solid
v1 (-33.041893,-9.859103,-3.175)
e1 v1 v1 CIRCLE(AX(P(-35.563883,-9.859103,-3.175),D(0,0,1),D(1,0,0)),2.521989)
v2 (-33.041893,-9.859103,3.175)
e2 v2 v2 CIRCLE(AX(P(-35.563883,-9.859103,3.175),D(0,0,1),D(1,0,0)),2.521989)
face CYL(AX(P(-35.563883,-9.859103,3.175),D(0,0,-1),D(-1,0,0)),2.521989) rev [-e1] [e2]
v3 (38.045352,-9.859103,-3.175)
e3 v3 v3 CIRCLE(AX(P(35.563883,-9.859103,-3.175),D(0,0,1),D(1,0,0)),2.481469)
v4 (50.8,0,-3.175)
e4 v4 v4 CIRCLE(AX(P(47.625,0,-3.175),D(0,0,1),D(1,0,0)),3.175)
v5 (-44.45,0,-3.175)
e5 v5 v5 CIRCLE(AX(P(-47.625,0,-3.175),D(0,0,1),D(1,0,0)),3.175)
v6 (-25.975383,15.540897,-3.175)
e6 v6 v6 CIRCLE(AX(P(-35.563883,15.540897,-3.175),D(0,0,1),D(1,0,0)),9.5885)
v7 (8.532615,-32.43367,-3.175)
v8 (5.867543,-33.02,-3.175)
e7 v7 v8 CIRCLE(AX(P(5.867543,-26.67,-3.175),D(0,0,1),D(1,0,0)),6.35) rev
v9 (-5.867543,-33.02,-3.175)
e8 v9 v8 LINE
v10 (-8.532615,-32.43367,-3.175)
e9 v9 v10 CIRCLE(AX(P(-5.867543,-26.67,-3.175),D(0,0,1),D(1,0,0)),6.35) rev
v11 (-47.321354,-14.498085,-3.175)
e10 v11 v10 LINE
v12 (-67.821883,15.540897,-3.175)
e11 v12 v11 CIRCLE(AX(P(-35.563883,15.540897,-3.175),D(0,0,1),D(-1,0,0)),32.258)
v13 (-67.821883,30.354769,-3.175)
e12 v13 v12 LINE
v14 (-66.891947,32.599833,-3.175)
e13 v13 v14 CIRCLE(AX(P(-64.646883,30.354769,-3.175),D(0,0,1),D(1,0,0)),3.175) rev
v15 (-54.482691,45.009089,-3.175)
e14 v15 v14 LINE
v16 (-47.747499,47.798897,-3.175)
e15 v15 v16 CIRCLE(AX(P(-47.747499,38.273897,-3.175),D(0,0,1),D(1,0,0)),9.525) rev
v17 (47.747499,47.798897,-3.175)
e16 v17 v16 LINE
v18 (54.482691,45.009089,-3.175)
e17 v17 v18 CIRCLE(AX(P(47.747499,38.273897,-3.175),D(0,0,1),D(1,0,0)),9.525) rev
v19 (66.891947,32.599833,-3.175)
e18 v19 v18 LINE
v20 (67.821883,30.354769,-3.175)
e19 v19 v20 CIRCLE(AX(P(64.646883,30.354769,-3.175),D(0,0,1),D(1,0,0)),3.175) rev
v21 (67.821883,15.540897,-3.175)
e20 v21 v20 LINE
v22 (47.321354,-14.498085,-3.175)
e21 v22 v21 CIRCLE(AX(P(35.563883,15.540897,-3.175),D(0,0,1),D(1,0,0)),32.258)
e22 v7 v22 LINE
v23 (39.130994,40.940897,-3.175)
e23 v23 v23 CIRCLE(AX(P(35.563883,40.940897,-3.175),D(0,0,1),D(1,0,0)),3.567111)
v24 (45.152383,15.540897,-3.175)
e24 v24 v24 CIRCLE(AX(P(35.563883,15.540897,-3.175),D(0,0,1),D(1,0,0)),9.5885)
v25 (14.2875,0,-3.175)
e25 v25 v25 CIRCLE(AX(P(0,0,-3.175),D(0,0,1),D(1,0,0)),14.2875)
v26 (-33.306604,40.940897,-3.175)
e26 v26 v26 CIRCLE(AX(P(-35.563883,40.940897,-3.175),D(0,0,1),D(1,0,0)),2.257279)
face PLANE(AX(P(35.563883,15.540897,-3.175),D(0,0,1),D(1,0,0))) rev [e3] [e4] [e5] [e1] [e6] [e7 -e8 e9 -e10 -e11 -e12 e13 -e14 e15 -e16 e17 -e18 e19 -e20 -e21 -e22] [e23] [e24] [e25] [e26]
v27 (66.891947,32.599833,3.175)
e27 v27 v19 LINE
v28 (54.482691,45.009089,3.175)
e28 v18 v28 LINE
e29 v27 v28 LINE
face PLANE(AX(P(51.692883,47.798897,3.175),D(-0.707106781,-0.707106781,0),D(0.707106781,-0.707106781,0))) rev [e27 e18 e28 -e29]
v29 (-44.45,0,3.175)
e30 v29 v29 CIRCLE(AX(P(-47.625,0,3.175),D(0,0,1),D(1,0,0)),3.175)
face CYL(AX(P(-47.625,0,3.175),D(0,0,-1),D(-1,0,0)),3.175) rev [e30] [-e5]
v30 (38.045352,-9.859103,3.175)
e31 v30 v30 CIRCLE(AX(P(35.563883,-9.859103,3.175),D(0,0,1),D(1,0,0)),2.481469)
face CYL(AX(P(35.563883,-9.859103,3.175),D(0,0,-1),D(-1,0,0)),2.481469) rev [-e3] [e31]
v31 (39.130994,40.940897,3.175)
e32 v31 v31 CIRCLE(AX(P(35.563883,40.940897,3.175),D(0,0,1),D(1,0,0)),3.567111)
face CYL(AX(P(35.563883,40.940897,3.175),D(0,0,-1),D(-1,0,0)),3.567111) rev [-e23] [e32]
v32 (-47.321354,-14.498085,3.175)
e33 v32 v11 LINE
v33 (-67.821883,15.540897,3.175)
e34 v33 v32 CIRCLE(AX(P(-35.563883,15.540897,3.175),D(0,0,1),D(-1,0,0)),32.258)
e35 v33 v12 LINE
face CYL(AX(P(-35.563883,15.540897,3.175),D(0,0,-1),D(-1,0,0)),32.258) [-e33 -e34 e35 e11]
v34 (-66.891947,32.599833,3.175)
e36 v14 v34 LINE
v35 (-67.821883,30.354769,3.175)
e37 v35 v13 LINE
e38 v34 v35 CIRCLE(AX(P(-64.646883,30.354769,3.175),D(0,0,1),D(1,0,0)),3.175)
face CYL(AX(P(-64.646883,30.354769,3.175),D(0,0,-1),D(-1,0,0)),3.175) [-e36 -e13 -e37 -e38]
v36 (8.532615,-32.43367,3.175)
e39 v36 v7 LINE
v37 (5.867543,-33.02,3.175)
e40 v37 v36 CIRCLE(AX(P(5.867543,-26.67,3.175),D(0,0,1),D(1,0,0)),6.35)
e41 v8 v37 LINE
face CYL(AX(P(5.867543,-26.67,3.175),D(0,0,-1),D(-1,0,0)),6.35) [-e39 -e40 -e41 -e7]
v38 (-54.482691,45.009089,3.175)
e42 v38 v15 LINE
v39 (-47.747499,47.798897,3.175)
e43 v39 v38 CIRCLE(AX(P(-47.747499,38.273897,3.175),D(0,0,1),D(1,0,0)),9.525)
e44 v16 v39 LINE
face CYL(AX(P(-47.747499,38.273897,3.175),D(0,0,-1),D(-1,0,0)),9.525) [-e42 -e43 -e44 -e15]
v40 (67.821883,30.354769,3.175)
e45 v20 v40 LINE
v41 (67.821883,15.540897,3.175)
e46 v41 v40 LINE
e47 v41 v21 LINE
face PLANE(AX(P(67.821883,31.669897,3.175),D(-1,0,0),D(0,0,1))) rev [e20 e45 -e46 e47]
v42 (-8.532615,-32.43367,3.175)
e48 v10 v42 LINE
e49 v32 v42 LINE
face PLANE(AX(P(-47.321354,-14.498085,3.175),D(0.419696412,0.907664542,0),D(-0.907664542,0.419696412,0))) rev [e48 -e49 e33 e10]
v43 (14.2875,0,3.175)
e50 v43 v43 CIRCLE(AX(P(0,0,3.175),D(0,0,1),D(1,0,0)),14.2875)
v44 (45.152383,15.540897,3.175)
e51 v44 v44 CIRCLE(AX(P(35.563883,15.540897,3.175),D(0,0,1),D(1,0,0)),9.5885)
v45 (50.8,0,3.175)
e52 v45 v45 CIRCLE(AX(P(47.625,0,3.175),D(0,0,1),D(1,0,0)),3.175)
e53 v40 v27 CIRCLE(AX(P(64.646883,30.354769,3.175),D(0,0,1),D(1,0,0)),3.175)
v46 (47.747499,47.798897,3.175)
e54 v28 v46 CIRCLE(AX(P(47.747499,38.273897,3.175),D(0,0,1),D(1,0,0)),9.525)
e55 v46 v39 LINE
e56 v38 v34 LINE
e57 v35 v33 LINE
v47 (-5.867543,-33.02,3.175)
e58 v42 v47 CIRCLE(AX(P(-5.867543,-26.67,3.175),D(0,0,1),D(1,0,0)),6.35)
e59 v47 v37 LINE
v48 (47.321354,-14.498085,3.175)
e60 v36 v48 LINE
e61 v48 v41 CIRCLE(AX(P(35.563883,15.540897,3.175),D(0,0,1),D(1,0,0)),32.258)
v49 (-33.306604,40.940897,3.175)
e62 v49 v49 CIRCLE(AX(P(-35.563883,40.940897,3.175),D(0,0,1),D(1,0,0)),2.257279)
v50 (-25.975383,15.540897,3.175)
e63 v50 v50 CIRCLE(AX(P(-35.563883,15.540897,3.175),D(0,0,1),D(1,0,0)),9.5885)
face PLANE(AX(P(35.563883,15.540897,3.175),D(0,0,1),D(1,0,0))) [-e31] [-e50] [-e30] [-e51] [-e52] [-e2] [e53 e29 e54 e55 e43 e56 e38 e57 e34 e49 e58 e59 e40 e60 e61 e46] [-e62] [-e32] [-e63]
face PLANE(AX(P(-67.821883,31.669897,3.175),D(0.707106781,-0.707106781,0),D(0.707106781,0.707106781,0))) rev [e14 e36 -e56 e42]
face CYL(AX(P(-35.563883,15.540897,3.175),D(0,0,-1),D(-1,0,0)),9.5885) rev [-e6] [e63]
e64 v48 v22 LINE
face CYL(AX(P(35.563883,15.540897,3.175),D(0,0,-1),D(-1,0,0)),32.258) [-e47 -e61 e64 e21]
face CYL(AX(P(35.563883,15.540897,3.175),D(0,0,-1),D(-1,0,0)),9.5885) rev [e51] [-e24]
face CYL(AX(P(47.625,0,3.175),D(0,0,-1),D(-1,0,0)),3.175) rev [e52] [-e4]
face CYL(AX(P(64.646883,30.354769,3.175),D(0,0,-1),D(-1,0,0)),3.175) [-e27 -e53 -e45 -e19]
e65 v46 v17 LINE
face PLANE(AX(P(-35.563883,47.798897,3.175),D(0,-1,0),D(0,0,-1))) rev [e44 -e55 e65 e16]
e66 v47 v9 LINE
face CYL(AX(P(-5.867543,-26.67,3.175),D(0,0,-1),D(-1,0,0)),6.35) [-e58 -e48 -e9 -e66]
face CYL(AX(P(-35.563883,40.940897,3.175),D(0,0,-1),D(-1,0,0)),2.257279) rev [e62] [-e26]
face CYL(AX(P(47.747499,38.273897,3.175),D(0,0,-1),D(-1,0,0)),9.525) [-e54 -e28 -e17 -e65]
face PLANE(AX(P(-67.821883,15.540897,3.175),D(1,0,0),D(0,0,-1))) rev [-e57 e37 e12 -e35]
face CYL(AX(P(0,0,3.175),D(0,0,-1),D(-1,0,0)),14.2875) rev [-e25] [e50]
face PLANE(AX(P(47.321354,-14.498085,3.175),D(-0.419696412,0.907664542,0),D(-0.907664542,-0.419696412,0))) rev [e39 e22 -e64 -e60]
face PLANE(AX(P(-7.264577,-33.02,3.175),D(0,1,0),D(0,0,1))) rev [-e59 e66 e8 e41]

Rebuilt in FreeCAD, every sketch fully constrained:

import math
import FreeCAD as App
import Part
import Sketcher
Q = App.Units.Quantity


def edges_at(feature, points):
    """Names of the edges that pass closest to the given points."""
    edges = feature.Shape.Edges
    near = lambda p: min(range(len(edges)), key=lambda i: edges[i].distToShape(Part.Vertex(*p))[0])
    return sorted({f"Edge{near(p) + 1}" for p in points})

doc = App.newDocument("Part")
body = doc.addObject("PartDesign::Body", "Body")

# Sketch on XY plane
sketch1 = doc.addObject("Sketcher::SketchObject", "Sketch")
body.addObject(sketch1)
sketch1.AttachmentSupport = (doc.XY_Plane, [""])
sketch1.MapMode = "FlatFace"
sketch1.addGeometry(Part.LineSegment(App.Vector(67.821883, 31.669897, 0), App.Vector(51.692883, 47.798897, 0)), False)
sketch1.addGeometry(Part.LineSegment(App.Vector(51.692883, 47.798897, 0), App.Vector(-51.692883, 47.798897, 0)), False)
sketch1.addGeometry(Part.LineSegment(App.Vector(-51.692883, 47.798897, 0), App.Vector(-67.821883, 31.669897, 0)), False)
sketch1.addGeometry(Part.LineSegment(App.Vector(-67.821883, 31.669897, 0), App.Vector(-67.821883, 15.540897, 0)), False)
sketch1.addGeometry(Part.ArcOfCircle(Part.Circle(App.Vector(-35.563883, 15.540897, 0), App.Vector(0, 0, 1), 32.258), math.radians(-180), math.radians(-111.375729)), False)
sketch1.addGeometry(Part.LineSegment(App.Vector(-47.321354, -14.498085, 0), App.Vector(-7.264577, -33.02, 0)), False)
sketch1.addGeometry(Part.LineSegment(App.Vector(-7.264577, -33.02, 0), App.Vector(7.264577, -33.02, 0)), False)
sketch1.addGeometry(Part.LineSegment(App.Vector(7.264577, -33.02, 0), App.Vector(47.321354, -14.498085, 0)), False)
sketch1.addGeometry(Part.ArcOfCircle(Part.Circle(App.Vector(35.563883, 15.540897, 0), App.Vector(0, 0, 1), 32.258), math.radians(-68.624271), math.radians(0)), False)
sketch1.addGeometry(Part.LineSegment(App.Vector(67.821883, 15.540897, 0), App.Vector(67.821883, 31.669897, 0)), False)
sketch1.addGeometry(Part.Circle(App.Vector(35.563883, -9.859103, 0), App.Vector(0, 0, 1), 2.481469), False)
sketch1.addGeometry(Part.Circle(App.Vector(47.625, 0, 0), App.Vector(0, 0, 1), 3.175), False)
sketch1.addGeometry(Part.Circle(App.Vector(0, 0, 0), App.Vector(0, 0, 1), 14.2875), False)
sketch1.addGeometry(Part.Circle(App.Vector(-35.563883, -9.859103, 0), App.Vector(0, 0, 1), 2.521989), False)
sketch1.addGeometry(Part.Circle(App.Vector(-47.625, 0, 0), App.Vector(0, 0, 1), 3.175), False)
sketch1.addGeometry(Part.Circle(App.Vector(35.563883, 15.540897, 0), App.Vector(0, 0, 1), 9.5885), False)
sketch1.addGeometry(Part.Circle(App.Vector(35.563883, 40.940897, 0), App.Vector(0, 0, 1), 3.567111), False)
sketch1.addGeometry(Part.Circle(App.Vector(-35.563883, 15.540897, 0), App.Vector(0, 0, 1), 9.5885), False)
sketch1.addGeometry(Part.Circle(App.Vector(-35.563883, 40.940897, 0), App.Vector(0, 0, 1), 2.257279), False)
sketch1.addConstraint(Sketcher.Constraint("Coincident", 0, 2, 1, 1))
sketch1.addConstraint(Sketcher.Constraint("Coincident", 1, 2, 2, 1))
sketch1.addConstraint(Sketcher.Constraint("Coincident", 2, 2, 3, 1))
sketch1.addConstraint(Sketcher.Constraint("Tangent", 3, 2, 4, 1))
sketch1.addConstraint(Sketcher.Constraint("Coincident", 4, 2, 5, 1))
sketch1.addConstraint(Sketcher.Constraint("Coincident", 5, 2, 6, 1))
sketch1.addConstraint(Sketcher.Constraint("Coincident", 6, 2, 7, 1))
sketch1.addConstraint(Sketcher.Constraint("Coincident", 7, 2, 8, 1))
sketch1.addConstraint(Sketcher.Constraint("Tangent", 8, 2, 9, 1))
sketch1.addConstraint(Sketcher.Constraint("Coincident", 9, 2, 0, 1))
sketch1.addConstraint(Sketcher.Constraint("Horizontal", 1))
sketch1.addConstraint(Sketcher.Constraint("Vertical", 3))
sketch1.addConstraint(Sketcher.Constraint("Horizontal", 6))
sketch1.addConstraint(Sketcher.Constraint("Vertical", 9))
sketch1.addConstraint(Sketcher.Constraint("Coincident", 12, 3, -1, 1))
sketch1.addConstraint(Sketcher.Constraint("Coincident", 15, 3, 8, 3))
sketch1.addConstraint(Sketcher.Constraint("Coincident", 17, 3, 4, 3))
sketch1.addConstraint(Sketcher.Constraint("Equal", 4, 8))
sketch1.addConstraint(Sketcher.Constraint("Equal", 11, 14))
sketch1.addConstraint(Sketcher.Constraint("Equal", 15, 17))
sketch1.addConstraint(Sketcher.Constraint("Symmetric", 11, 3, 14, 3, -1, 1))
sketch1.addConstraint(Sketcher.Constraint("Symmetric", 4, 3, 8, 3, -2))
sketch1.addConstraint(Sketcher.Constraint("Symmetric", 10, 3, 13, 3, -2))
sketch1.addConstraint(Sketcher.Constraint("Symmetric", 16, 3, 18, 3, -2))
sketch1.addConstraint(Sketcher.Constraint("PointOnObject", 11, 3, -1))
sketch1.addConstraint(Sketcher.Constraint("Perpendicular", 0, 2))
sketch1.addConstraint(Sketcher.Constraint("Horizontal", 4, 2, 7, 2))
sketch1.addConstraint(Sketcher.Constraint("Horizontal", 2, 2, 9, 2))
sketch1.addConstraint(Sketcher.Constraint("Vertical", 8, 3, 10, 3))
sketch1.addConstraint(Sketcher.Constraint("Vertical", 15, 3, 16, 3))
sketch1.addConstraint(Sketcher.Constraint("Equal", 0, 2))
sketch1.addConstraint(Sketcher.Constraint("Equal", 5, 7))
sketch1.addConstraint(Sketcher.Constraint("Diameter", 11, Q("0.25 in")))
sketch1.addConstraint(Sketcher.Constraint("Radius", 4, Q("1.27 in")))
sketch1.addConstraint(Sketcher.Constraint("Diameter", 12, Q("1.125 in")))
sketch1.addConstraint(Sketcher.Constraint("Diameter", 15, Q("0.755 in")))
sketch1.addConstraint(Sketcher.Constraint("DistanceY", 10, 3, 8, 3, Q("1 in")))
sketch1.addConstraint(Sketcher.Constraint("DistanceY", 8, 3, 16, 3, Q("1 in")))
sketch1.addConstraint(Sketcher.Constraint("DistanceY", 5, 2, -1, 1, Q("1.3 in")))
sketch1.addConstraint(Sketcher.Constraint("DistanceY", 3, 2, 3, 1, Q("0.635 in")))
sketch1.addConstraint(Sketcher.Constraint("DistanceY", 16, 3, 0, 2, Q("0.27 in")))
sketch1.addConstraint(Sketcher.Constraint("Diameter", 13, 5.043979))
sketch1.addConstraint(Sketcher.Constraint("DistanceX", -1, 1, 11, 3, Q("1.875 in")))
sketch1.addConstraint(Sketcher.Constraint("Diameter", 10, 4.962938))
sketch1.addConstraint(Sketcher.Constraint("Diameter", 16, 7.134223))
sketch1.addConstraint(Sketcher.Constraint("Diameter", 18, 4.514558))
sketch1.addConstraint(Sketcher.Constraint("Distance", 5, 44.131698))
sketch1.addConstraint(Sketcher.Constraint("DistanceX", 1, 2, 1, 1, 103.385766))
sketch1.addConstraint(Sketcher.Constraint("DistanceX", 6, 1, 6, 2, 14.529154))
sketch1.addConstraint(Sketcher.Constraint("DistanceX", 4, 2, 13, 3, 11.757472))
pad1 = doc.addObject("PartDesign::Pad", "Pad")
body.addObject(pad1)
pad1.Profile = sketch1
pad1.Length = Q("0.25 in")
pad1.Midplane = True
doc.recompute()

fillet = doc.addObject("PartDesign::Fillet", "Fillet")
body.addObject(fillet)
fillet.Base = (pad1, edges_at(pad1, [(51.693, 47.799, 0), (-51.693, 47.799, 0)]))
fillet.Radius = Q("0.375 in")
doc.recompute()

fillet2 = doc.addObject("PartDesign::Fillet", "Fillet001")
body.addObject(fillet2)
fillet2.Base = (fillet, edges_at(fillet, [(67.822, 31.67, 0), (-67.822, 31.67, 0)]))
fillet2.Radius = Q("0.125 in")
doc.recompute()

fillet3 = doc.addObject("PartDesign::Fillet", "Fillet002")
body.addObject(fillet3)
fillet3.Base = (fillet2, edges_at(fillet2, [(7.265, -33.02, 0), (-7.265, -33.02, 0)]))
fillet3.Radius = Q("0.25 in")

doc.recompute()
